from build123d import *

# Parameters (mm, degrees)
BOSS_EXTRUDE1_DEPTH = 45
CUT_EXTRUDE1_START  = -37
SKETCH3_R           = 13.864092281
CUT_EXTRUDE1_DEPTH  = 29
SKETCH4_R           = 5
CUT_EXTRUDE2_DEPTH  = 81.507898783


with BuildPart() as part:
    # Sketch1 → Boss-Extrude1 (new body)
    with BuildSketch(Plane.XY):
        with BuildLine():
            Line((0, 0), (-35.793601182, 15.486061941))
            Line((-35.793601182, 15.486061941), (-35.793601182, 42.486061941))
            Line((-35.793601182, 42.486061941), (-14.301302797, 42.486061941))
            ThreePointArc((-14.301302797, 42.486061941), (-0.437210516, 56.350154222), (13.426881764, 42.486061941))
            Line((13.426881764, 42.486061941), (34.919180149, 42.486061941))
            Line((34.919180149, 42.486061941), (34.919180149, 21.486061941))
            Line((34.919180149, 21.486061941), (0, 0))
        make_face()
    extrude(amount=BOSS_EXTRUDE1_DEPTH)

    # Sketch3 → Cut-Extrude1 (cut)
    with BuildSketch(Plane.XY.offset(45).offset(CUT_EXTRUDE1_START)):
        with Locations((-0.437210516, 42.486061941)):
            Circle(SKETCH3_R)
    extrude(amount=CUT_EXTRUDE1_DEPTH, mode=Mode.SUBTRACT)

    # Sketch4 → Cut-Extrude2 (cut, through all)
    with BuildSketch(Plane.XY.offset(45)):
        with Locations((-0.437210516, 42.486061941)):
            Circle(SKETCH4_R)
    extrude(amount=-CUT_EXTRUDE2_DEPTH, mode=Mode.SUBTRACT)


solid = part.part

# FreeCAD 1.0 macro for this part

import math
import FreeCAD as App
import Part
import Sketcher
Q = App.Units.Quantity

doc = App.newDocument("Part")
body = doc.addObject("PartDesign::Body", "Body")

# Sketch on XY plane
sketch1 = body.newObject("Sketcher::SketchObject", "Sketch")
sketch1.AttachmentSupport = (doc.getObject("XY_Plane"), [""])
sketch1.MapMode = "FlatFace"
sketch1.addGeometry(Part.LineSegment(App.Vector(-36, 15, 0), App.Vector(0, 0, 0)), False)
sketch1.addGeometry(Part.LineSegment(App.Vector(0, 0, 0), App.Vector(35, 21, 0)), False)
sketch1.addGeometry(Part.LineSegment(App.Vector(35, 21, 0), App.Vector(35, 42, 0)), False)
sketch1.addGeometry(Part.LineSegment(App.Vector(35, 42, 0), App.Vector(13, 42, 0)), False)
sketch1.addGeometry(Part.ArcOfCircle(Part.Circle(App.Vector(0, 42, 0), App.Vector(0, 0, 1), 14), math.radians(0), math.radians(180)), False)
sketch1.addGeometry(Part.LineSegment(App.Vector(-14, 42, 0), App.Vector(-36, 42, 0)), False)
sketch1.addGeometry(Part.LineSegment(App.Vector(-36, 42, 0), App.Vector(-36, 15, 0)), False)
sketch1.addConstraint(Sketcher.Constraint("Coincident", 0, 2, 1, 1))
sketch1.addConstraint(Sketcher.Constraint("Coincident", 1, 2, 2, 1))
sketch1.addConstraint(Sketcher.Constraint("Coincident", 2, 2, 3, 1))
sketch1.addConstraint(Sketcher.Constraint("Coincident", 3, 2, 4, 1))
sketch1.addConstraint(Sketcher.Constraint("Coincident", 4, 2, 5, 1))
sketch1.addConstraint(Sketcher.Constraint("Coincident", 5, 2, 6, 1))
sketch1.addConstraint(Sketcher.Constraint("Coincident", 6, 2, 0, 1))
sketch1.addConstraint(Sketcher.Constraint("Vertical", 2))
sketch1.addConstraint(Sketcher.Constraint("Horizontal", 3))
sketch1.addConstraint(Sketcher.Constraint("Horizontal", 5))
sketch1.addConstraint(Sketcher.Constraint("Vertical", 6))
sketch1.addConstraint(Sketcher.Constraint("Coincident", 0, 2, -1, 1))
sketch1.addConstraint(Sketcher.Constraint("Horizontal", 4, 3, 2, 2))
sketch1.addConstraint(Sketcher.Constraint("Horizontal", 3, 2, 4, 2))
sketch1.addConstraint(Sketcher.Constraint("Equal", 3, 5))
sketch1.addConstraint(Sketcher.Constraint("DistanceY", 2, 1, 2, 2, Q("21 mm")))
sketch1.addConstraint(Sketcher.Constraint("DistanceY", 6, 2, 6, 1, Q("27 mm")))
sketch1.addConstraint(Sketcher.Constraint("Distance", 0, Q("39 mm")))
sketch1.addConstraint(Sketcher.Constraint("Distance", 1, Q("41 mm")))
sketch1.addConstraint(Sketcher.Constraint("DistanceX", 3, 2, 3, 1, Q("21.492298 mm")))
sketch1.addConstraint(Sketcher.Constraint("Radius", 4, Q("13.864092 mm")))
pad1 = body.newObject("PartDesign::Pad", "Pad")
pad1.Profile = sketch1
pad1.Length = 45

# Sketch on XY plane
sketch2 = body.newObject("Sketcher::SketchObject", "Sketch001")
sketch2.AttachmentSupport = (doc.getObject("XY_Plane"), [""])
sketch2.MapMode = "FlatFace"
sketch2.AttachmentOffset = App.Placement(App.Vector(0, 0, 8), App.Rotation())
sketch2.addGeometry(Part.Circle(App.Vector(0, 42, 0), App.Vector(0, 0, 1), 14), False)
sketch2.addConstraint(Sketcher.Constraint("Diameter", 0, Q("27.728185 mm")))
sketch2.addConstraint(Sketcher.Constraint("DistanceX", 0, 3, -1, 1, Q("0.437211 mm")))
sketch2.addConstraint(Sketcher.Constraint("DistanceY", -1, 1, 0, 3, Q("42.486062 mm")))
pocket1 = body.newObject("PartDesign::Pocket", "Pocket")
pocket1.Profile = sketch2
pocket1.Length = 29
pocket1.Reversed = True

# Sketch on XY plane
sketch3 = body.newObject("Sketcher::SketchObject", "Sketch002")
sketch3.AttachmentSupport = (doc.getObject("XY_Plane"), [""])
sketch3.MapMode = "FlatFace"
sketch3.AttachmentOffset = App.Placement(App.Vector(0, 0, 45), App.Rotation())
sketch3.addGeometry(Part.Circle(App.Vector(0, 42, 0), App.Vector(0, 0, 1), 5), False)
sketch3.addConstraint(Sketcher.Constraint("Diameter", 0, Q("10 mm")))
sketch3.addConstraint(Sketcher.Constraint("DistanceX", 0, 3, -1, 1, Q("0.437211 mm")))
sketch3.addConstraint(Sketcher.Constraint("DistanceY", -1, 1, 0, 3, Q("42.486062 mm")))
pocket2 = body.newObject("PartDesign::Pocket", "Pocket001")
pocket2.Profile = sketch3
pocket2.Type = "ThroughAll"

doc.recompute()
